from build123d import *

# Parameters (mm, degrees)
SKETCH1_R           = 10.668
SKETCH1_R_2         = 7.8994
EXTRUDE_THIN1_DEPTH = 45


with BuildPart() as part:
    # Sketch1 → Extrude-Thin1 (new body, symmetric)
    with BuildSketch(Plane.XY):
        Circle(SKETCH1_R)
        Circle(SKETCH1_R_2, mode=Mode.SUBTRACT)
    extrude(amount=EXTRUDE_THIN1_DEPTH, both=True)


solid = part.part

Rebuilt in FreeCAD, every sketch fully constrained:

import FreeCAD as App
import Part
import Sketcher
Q = App.Units.Quantity

doc = App.newDocument("Part")
body = doc.addObject("PartDesign::Body", "Body")

# Sketch on XY plane
sketch1 = doc.addObject("Sketcher::SketchObject", "Sketch")
body.addObject(sketch1)
sketch1.AttachmentSupport = (doc.XY_Plane, [""])
sketch1.MapMode = "FlatFace"
sketch1.addGeometry([
    Part.Circle(App.Vector(0, 0, 0), App.Vector(0, 0, 1), 10.668),
    Part.Circle(App.Vector(0, 0, 0), App.Vector(0, 0, 1), 7.8994),
], False)
sketch1.addConstraint([
    Sketcher.Constraint("Coincident", 0, 3, -1, 1),
    Sketcher.Constraint("Coincident", 1, 3, -1, 1),
    Sketcher.Constraint("Diameter", 0, Q("0.84 in")),
    Sketcher.Constraint("Diameter", 1, Q("0.622 in")),
])
pad1 = doc.addObject("PartDesign::Pad", "Pad")
body.addObject(pad1)
pad1.Profile = sketch1
pad1.Length = 90
pad1.Midplane = True

doc.recompute()
